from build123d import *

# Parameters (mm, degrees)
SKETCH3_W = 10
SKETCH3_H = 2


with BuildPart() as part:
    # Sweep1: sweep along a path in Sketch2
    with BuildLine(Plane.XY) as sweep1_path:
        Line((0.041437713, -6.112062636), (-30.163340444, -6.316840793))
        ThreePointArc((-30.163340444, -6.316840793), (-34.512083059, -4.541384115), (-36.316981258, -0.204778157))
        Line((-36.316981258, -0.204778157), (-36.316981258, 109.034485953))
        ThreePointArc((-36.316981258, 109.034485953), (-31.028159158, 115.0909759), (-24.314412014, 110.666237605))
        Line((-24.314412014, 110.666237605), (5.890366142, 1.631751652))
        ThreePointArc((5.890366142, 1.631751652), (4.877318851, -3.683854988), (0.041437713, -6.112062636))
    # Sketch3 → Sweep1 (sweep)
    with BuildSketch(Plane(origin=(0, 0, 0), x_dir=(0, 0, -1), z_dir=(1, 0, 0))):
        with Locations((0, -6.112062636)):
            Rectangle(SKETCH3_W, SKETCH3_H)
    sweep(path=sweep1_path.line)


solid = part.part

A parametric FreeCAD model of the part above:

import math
import FreeCAD as App
import Part
import Sketcher

doc = App.newDocument("Part")
body = doc.addObject("PartDesign::Body", "Body")

# Sketch on YZ plane
sketch1 = body.newObject("Sketcher::SketchObject", "Sketch")
sketch1.AttachmentSupport = (doc.getObject("YZ_Plane"), [""])
sketch1.MapMode = "FlatFace"
sketch1.addGeometry(Part.LineSegment(App.Vector(-5.1, 5, 0), App.Vector(-7.1, 5, 0)), False)
sketch1.addGeometry(Part.LineSegment(App.Vector(-7.1, 5, 0), App.Vector(-7.1, -5, 0)), False)
sketch1.addGeometry(Part.LineSegment(App.Vector(-7.1, -5, 0), App.Vector(-5.1, -5, 0)), False)
sketch1.addGeometry(Part.LineSegment(App.Vector(-5.1, -5, 0), App.Vector(-5.1, 5, 0)), False)
sketch1.addConstraint(Sketcher.Constraint("Coincident", 0, 2, 1, 1))
sketch1.addConstraint(Sketcher.Constraint("Coincident", 1, 2, 2, 1))
sketch1.addConstraint(Sketcher.Constraint("Coincident", 2, 2, 3, 1))
sketch1.addConstraint(Sketcher.Constraint("Coincident", 3, 2, 0, 1))
sketch1.addConstraint(Sketcher.Constraint("Horizontal", 0))
sketch1.addConstraint(Sketcher.Constraint("Vertical", 1))
sketch1.addConstraint(Sketcher.Constraint("Horizontal", 2))
sketch1.addConstraint(Sketcher.Constraint("Vertical", 3))
sketch1.addConstraint(Sketcher.Constraint("DistanceX", 0, 2, 0, 1, 2.0))
sketch1.addConstraint(Sketcher.Constraint("DistanceY", 1, 2, 1, 1, 10.0))
sketch1.addConstraint(Sketcher.Constraint("DistanceY", -1, 1, 0, 2, 5.0))
sketch1.addConstraint(Sketcher.Constraint("DistanceX", 0, 2, -1, 1, 7.112063))

# Sketch on XY plane
sketch2 = body.newObject("Sketcher::SketchObject", "Sketch001")
sketch2.AttachmentSupport = (doc.getObject("XY_Plane"), [""])
sketch2.MapMode = "FlatFace"
sketch2.addGeometry(Part.LineSegment(App.Vector(0, -6, 0), App.Vector(-30, -6, 0)), False)
sketch2.addGeometry(Part.ArcOfCircle(Part.Circle(App.Vector(-30, 0, 0), App.Vector(0, 0, 1), 6), math.radians(180), math.radians(270)), False)
sketch2.addGeometry(Part.LineSegment(App.Vector(-36, 0, 0), App.Vector(-36, 109, 0)), False)
sketch2.addGeometry(Part.ArcOfCircle(Part.Circle(App.Vector(-30, 109, 0), App.Vector(0, 0, 1), 6), math.radians(15), math.radians(180)), False)
sketch2.addGeometry(Part.LineSegment(App.Vector(-24, 111, 0), App.Vector(6, 2, 0)), False)
sketch2.addGeometry(Part.ArcOfCircle(Part.Circle(App.Vector(0, 0, 0), App.Vector(0, 0, 1), 6), math.radians(-90), math.radians(15)), False)
sketch2.addConstraint(Sketcher.Constraint("Tangent", 0, 2, 1, 2))
sketch2.addConstraint(Sketcher.Constraint("Tangent", 1, 1, 2, 1))
sketch2.addConstraint(Sketcher.Constraint("Tangent", 2, 2, 3, 2))
sketch2.addConstraint(Sketcher.Constraint("Tangent", 3, 1, 4, 1))
sketch2.addConstraint(Sketcher.Constraint("Tangent", 4, 2, 5, 2))
sketch2.addConstraint(Sketcher.Constraint("Tangent", 5, 1, 0, 1))
sketch2.addConstraint(Sketcher.Constraint("Vertical", 2))
sketch2.addConstraint(Sketcher.Constraint("Coincident", 5, 3, -1, 1))
sketch2.addConstraint(Sketcher.Constraint("Equal", 1, 3))
sketch2.addConstraint(Sketcher.Constraint("Equal", 3, 5))
sketch2.addConstraint(Sketcher.Constraint("Radius", 1, 6.112203))
sketch2.addConstraint(Sketcher.Constraint("Distance", 4, 113.140831))
sketch2.addConstraint(Sketcher.Constraint("DistanceY", 2, 1, 2, 2, 109.239264))
sketch2.addConstraint(Sketcher.Constraint("DistanceX", 1, 3, -1, 1, 30.204778))
doc.recompute()

additivepipe = body.newObject("PartDesign::AdditivePipe", "AdditivePipe")
additivepipe.Profile = sketch1
additivepipe.Spine = (sketch2, ["Edge1", "Edge2", "Edge3", "Edge4", "Edge5", "Edge6"])

doc.recompute()
